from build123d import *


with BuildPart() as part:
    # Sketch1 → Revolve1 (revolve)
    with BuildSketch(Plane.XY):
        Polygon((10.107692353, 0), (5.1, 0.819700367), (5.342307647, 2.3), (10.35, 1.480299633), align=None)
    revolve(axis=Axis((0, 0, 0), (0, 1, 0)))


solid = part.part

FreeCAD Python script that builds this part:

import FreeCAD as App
import Part
import Sketcher


def add_polygon(sketch, points):
    """Adds a closed chain of lines whose ends are joined by coincident constraints."""
    first, n = sketch.GeometryCount, len(points)
    for a, b in zip(points, points[1:] + points[:1]):
        sketch.addGeometry(Part.LineSegment(App.Vector(*a, 0), App.Vector(*b, 0)), False)
    for i in range(n):
        sketch.addConstraint(Sketcher.Constraint("Coincident", first + i, 2, first + (i + 1) % n, 1))

doc = App.newDocument("Part")
body = doc.addObject("PartDesign::Body", "Body")

# Sketch on XY plane
sketch1 = doc.addObject("Sketcher::SketchObject", "Sketch")
body.addObject(sketch1)
sketch1.AttachmentSupport = (doc.XY_Plane, [""])
sketch1.MapMode = "FlatFace"
add_polygon(sketch1, [(5.1, 0.8), (10.1, 0), (10.3, 1.5), (5.3, 2.3)])  # lines 0-3
sketch1.addConstraint(Sketcher.Constraint("PointOnObject", 0, 2, -1))
sketch1.addConstraint(Sketcher.Constraint("Perpendicular", 0, 1))
sketch1.addConstraint(Sketcher.Constraint("Perpendicular", 1, 2))
sketch1.addConstraint(Sketcher.Constraint("Perpendicular", 2, 3))
sketch1.addConstraint(Sketcher.Constraint("Distance", 1, 1.5))
sketch1.addConstraint(Sketcher.Constraint("DistanceY", -1, 1, 2, 2, 2.3))
sketch1.addConstraint(Sketcher.Constraint("DistanceX", -1, 1, 3, 2, 5.1))
sketch1.addConstraint(Sketcher.Constraint("DistanceX", -1, 1, 1, 2, 10.35))
revolution = doc.addObject("PartDesign::Revolution", "Revolution")
body.addObject(revolution)
revolution.Profile = sketch1
revolution.ReferenceAxis = (sketch1, ["V_Axis"])
revolution.Angle = 360

doc.recompute()
